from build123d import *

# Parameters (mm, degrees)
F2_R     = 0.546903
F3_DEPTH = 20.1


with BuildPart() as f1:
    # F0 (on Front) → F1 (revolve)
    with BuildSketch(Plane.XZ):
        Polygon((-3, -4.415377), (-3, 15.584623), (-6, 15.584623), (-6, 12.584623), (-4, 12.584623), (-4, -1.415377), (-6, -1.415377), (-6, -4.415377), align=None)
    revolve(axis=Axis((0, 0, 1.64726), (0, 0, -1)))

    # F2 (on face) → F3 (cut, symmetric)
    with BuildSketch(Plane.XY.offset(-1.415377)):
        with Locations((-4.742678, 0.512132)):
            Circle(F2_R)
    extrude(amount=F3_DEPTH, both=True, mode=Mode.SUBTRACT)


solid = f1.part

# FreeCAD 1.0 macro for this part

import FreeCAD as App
import Part
import Sketcher

doc = App.newDocument("Part")
body = doc.addObject("PartDesign::Body", "Body")

# Sketch on XZ plane
sketch1 = body.newObject("Sketcher::SketchObject", "Sketch")
sketch1.AttachmentSupport = (doc.getObject("XZ_Plane"), [""])
sketch1.MapMode = "FlatFace"
sketch1.addGeometry(Part.LineSegment(App.Vector(-3, -4.4, 0), App.Vector(-3, 15.6, 0)), False)
sketch1.addGeometry(Part.LineSegment(App.Vector(-3, 15.6, 0), App.Vector(-6, 15.6, 0)), False)
sketch1.addGeometry(Part.LineSegment(App.Vector(-6, 15.6, 0), App.Vector(-6, 12.6, 0)), False)
sketch1.addGeometry(Part.LineSegment(App.Vector(-6, 12.6, 0), App.Vector(-4, 12.6, 0)), False)
sketch1.addGeometry(Part.LineSegment(App.Vector(-4, 12.6, 0), App.Vector(-4, -1.4, 0)), False)
sketch1.addGeometry(Part.LineSegment(App.Vector(-4, -1.4, 0), App.Vector(-6, -1.4, 0)), False)
sketch1.addGeometry(Part.LineSegment(App.Vector(-6, -1.4, 0), App.Vector(-6, -4.4, 0)), False)
sketch1.addGeometry(Part.LineSegment(App.Vector(-6, -4.4, 0), App.Vector(-3, -4.4, 0)), False)
sketch1.addConstraint(Sketcher.Constraint("Coincident", 0, 2, 1, 1))
sketch1.addConstraint(Sketcher.Constraint("Coincident", 1, 2, 2, 1))
sketch1.addConstraint(Sketcher.Constraint("Coincident", 2, 2, 3, 1))
sketch1.addConstraint(Sketcher.Constraint("Coincident", 3, 2, 4, 1))
sketch1.addConstraint(Sketcher.Constraint("Coincident", 4, 2, 5, 1))
sketch1.addConstraint(Sketcher.Constraint("Coincident", 5, 2, 6, 1))
sketch1.addConstraint(Sketcher.Constraint("Coincident", 6, 2, 7, 1))
sketch1.addConstraint(Sketcher.Constraint("Coincident", 7, 2, 0, 1))
sketch1.addConstraint(Sketcher.Constraint("Vertical", 0))
sketch1.addConstraint(Sketcher.Constraint("Horizontal", 1))
sketch1.addConstraint(Sketcher.Constraint("Vertical", 2))
sketch1.addConstraint(Sketcher.Constraint("Horizontal", 3))
sketch1.addConstraint(Sketcher.Constraint("Vertical", 4))
sketch1.addConstraint(Sketcher.Constraint("Horizontal", 5))
sketch1.addConstraint(Sketcher.Constraint("Vertical", 6))
sketch1.addConstraint(Sketcher.Constraint("Horizontal", 7))
sketch1.addConstraint(Sketcher.Constraint("Vertical", 2, 2, 5, 2))
sketch1.addConstraint(Sketcher.Constraint("Equal", 7, 2))
sketch1.addConstraint(Sketcher.Constraint("Equal", 2, 6))
sketch1.addConstraint(Sketcher.Constraint("DistanceX", 1, 2, 1, 1, 3.0))
sketch1.addConstraint(Sketcher.Constraint("DistanceX", 3, 1, 3, 2, 2.0))
sketch1.addConstraint(Sketcher.Constraint("DistanceY", 0, 1, 0, 2, 20.0))
sketch1.addConstraint(Sketcher.Constraint("DistanceX", 0, 2, -1, 1, 3.0))
sketch1.addConstraint(Sketcher.Constraint("DistanceY", -1, 1, 0, 2, 15.584623))
revolution = body.newObject("PartDesign::Revolution", "Revolution")
revolution.Profile = sketch1
revolution.ReferenceAxis = (sketch1, ["V_Axis"])
revolution.Angle = 360

# Sketch on XY plane
sketch2 = body.newObject("Sketcher::SketchObject", "Sketch001")
sketch2.AttachmentSupport = (doc.getObject("XY_Plane"), [""])
sketch2.MapMode = "FlatFace"
sketch2.AttachmentOffset = App.Placement(App.Vector(0, 0, -1.415377), App.Rotation())
sketch2.addGeometry(Part.Circle(App.Vector(-4.7, 0.5, 0), App.Vector(0, 0, 1), 0.5), False)
sketch2.addConstraint(Sketcher.Constraint("Diameter", 0, 1.093806))
sketch2.addConstraint(Sketcher.Constraint("DistanceX", 0, 3, -1, 1, 4.742678))
sketch2.addConstraint(Sketcher.Constraint("DistanceY", -1, 1, 0, 3, 0.512132))
pocket1 = body.newObject("PartDesign::Pocket", "Pocket")
pocket1.Profile = sketch2
pocket1.Length = 40.2
pocket1.Midplane = True

doc.recompute()
